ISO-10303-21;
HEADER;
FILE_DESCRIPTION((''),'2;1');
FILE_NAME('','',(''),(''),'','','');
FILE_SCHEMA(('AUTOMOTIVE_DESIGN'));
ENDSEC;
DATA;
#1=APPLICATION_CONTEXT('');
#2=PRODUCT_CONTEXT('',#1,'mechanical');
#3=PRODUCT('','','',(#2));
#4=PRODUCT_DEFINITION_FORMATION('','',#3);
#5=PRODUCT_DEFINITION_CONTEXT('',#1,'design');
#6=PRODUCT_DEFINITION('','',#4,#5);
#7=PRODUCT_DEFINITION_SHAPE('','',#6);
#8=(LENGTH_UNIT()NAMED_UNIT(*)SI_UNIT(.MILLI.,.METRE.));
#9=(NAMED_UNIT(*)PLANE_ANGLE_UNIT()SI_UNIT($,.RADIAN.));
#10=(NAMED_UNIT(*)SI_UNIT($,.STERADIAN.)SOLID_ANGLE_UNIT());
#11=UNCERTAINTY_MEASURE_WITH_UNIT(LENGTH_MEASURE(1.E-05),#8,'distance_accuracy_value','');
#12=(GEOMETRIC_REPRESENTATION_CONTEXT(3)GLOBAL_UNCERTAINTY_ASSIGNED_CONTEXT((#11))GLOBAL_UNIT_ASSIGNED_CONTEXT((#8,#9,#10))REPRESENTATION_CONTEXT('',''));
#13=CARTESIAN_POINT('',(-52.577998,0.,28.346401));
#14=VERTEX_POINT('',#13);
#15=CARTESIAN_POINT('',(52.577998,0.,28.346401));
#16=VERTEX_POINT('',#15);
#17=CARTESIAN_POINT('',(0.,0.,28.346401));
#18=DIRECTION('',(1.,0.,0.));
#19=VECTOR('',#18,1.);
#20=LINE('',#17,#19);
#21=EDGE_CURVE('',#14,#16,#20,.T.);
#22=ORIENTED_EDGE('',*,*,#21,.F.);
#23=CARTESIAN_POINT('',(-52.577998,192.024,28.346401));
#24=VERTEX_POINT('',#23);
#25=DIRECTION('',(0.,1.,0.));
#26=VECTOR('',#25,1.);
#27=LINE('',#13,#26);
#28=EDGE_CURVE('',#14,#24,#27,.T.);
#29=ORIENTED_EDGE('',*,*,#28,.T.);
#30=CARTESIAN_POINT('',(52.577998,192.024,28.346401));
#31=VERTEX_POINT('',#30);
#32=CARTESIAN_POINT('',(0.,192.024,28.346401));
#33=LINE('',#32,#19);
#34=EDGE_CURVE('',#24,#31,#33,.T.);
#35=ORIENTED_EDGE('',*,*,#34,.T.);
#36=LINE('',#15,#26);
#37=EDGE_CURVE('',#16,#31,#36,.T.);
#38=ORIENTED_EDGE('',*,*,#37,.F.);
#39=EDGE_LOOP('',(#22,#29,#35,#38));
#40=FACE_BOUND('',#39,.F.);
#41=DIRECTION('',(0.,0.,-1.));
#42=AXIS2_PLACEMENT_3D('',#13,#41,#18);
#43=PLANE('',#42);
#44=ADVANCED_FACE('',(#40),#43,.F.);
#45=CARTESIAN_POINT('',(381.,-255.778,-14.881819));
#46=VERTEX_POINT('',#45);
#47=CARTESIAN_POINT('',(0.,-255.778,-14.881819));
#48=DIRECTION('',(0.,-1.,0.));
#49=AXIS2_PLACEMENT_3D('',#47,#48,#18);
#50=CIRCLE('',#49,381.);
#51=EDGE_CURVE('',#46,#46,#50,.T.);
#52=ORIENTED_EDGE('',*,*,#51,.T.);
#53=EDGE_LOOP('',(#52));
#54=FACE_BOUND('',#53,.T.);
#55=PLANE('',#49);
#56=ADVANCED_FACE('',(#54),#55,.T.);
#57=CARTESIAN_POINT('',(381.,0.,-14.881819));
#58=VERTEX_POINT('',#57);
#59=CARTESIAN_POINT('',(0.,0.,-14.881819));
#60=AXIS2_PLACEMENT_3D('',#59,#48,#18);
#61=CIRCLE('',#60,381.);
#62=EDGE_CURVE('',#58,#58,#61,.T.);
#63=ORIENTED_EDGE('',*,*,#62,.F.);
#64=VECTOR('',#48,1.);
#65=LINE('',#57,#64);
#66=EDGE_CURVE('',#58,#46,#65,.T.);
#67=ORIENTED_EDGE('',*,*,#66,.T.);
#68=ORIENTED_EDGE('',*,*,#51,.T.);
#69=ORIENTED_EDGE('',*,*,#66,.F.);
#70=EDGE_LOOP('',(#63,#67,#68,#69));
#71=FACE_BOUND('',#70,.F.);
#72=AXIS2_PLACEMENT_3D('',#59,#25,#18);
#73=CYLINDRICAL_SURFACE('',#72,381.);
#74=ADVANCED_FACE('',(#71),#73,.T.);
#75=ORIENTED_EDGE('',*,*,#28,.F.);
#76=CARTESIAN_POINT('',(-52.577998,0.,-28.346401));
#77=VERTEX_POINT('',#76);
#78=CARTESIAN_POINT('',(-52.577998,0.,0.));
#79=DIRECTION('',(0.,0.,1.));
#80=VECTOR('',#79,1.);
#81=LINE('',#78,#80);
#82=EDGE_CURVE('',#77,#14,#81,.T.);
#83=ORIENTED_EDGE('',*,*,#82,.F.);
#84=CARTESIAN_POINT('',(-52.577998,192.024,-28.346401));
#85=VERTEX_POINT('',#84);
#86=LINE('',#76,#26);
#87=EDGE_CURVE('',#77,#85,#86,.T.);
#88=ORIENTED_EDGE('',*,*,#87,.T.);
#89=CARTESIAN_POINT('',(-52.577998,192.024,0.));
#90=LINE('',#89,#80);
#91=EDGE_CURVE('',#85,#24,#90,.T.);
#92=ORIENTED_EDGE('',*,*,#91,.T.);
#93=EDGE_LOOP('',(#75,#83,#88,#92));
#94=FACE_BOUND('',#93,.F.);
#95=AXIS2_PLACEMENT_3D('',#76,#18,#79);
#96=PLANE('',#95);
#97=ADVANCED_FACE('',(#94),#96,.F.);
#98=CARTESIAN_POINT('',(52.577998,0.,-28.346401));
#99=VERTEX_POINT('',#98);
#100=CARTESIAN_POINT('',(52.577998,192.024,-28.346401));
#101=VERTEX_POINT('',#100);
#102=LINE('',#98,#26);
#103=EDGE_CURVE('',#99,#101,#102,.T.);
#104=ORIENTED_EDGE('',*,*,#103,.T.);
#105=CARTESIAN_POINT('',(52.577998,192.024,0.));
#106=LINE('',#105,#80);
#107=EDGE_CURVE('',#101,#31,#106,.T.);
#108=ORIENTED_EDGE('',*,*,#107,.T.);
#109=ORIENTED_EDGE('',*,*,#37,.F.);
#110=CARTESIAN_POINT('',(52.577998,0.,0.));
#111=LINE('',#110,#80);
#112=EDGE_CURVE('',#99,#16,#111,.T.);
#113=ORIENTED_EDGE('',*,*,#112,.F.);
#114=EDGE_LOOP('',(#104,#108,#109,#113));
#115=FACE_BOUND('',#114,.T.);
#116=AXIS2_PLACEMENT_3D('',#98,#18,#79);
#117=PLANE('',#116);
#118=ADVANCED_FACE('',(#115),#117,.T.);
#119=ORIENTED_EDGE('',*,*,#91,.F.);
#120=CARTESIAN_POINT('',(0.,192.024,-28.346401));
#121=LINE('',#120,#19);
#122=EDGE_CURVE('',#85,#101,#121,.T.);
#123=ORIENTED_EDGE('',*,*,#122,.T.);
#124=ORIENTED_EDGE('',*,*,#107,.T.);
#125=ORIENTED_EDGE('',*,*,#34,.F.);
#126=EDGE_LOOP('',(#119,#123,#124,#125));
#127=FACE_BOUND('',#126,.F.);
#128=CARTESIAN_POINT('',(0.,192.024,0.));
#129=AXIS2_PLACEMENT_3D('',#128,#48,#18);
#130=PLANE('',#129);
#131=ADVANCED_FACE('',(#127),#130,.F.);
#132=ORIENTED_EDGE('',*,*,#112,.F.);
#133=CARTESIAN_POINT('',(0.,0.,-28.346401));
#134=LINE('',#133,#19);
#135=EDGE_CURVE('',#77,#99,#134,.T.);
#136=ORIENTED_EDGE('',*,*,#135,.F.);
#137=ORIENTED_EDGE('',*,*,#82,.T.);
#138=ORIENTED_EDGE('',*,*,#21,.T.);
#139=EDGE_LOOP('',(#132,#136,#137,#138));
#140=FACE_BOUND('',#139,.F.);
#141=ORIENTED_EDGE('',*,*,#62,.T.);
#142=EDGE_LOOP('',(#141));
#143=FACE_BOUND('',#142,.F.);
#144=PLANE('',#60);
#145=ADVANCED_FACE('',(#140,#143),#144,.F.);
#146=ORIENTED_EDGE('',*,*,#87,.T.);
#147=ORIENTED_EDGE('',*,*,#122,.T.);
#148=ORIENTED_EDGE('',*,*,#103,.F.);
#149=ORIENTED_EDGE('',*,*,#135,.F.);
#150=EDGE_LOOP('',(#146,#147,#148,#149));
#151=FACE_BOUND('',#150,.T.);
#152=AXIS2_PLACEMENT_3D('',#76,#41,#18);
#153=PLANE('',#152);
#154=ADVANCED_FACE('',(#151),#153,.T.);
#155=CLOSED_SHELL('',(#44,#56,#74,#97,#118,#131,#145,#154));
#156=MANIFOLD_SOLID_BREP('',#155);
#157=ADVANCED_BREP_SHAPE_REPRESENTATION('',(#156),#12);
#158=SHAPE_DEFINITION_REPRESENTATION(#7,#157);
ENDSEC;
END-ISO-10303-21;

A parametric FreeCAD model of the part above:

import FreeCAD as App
import Part
import Sketcher

V = App.Vector
Q = App.Units.Quantity


def add_polygon(sketch, points):
    """Adds a closed chain of lines whose ends are joined by coincident constraints."""
    first, n = sketch.GeometryCount, len(points)
    for a, b in zip(points, points[1:] + points[:1]):
        sketch.addGeometry(Part.LineSegment(App.Vector(*a, 0), App.Vector(*b, 0)), False)
    for i in range(n):
        sketch.addConstraint(Sketcher.Constraint("Coincident", first + i, 2, first + (i + 1) % n, 1))

doc = App.newDocument("Part")
body = doc.addObject("PartDesign::Body", "Body")

# Sketch on XZ plane
sketch1 = doc.addObject("Sketcher::SketchObject", "Sketch")
body.addObject(sketch1)
sketch1.AttachmentSupport = (doc.XZ_Plane, [""])
sketch1.MapMode = "FlatFace"
add_polygon(sketch1, [(-53, 28), (-53, -28), (53, -28), (53, 28)])  # lines 0-3
sketch1.addConstraint(Sketcher.Constraint("Vertical", 0))
sketch1.addConstraint(Sketcher.Constraint("Horizontal", 1))
sketch1.addConstraint(Sketcher.Constraint("Vertical", 2))
sketch1.addConstraint(Sketcher.Constraint("Horizontal", 3))
sketch1.addConstraint(Sketcher.Constraint("Symmetric", 0, 2, 2, 2, -1, 1))
sketch1.addConstraint(Sketcher.Constraint("DistanceX", 1, 1, 1, 2, Q("4.1399998 in")))
sketch1.addConstraint(Sketcher.Constraint("DistanceY", 0, 2, 0, 1, Q("2.2320001 in")))
pad1 = doc.addObject("PartDesign::Pad", "Pad")
body.addObject(pad1)
pad1.Profile = sketch1
pad1.Length = Q("7.56 in")
pad1.Reversed = True

# Sketch on XZ plane
sketch2 = doc.addObject("Sketcher::SketchObject", "Sketch001")
body.addObject(sketch2)
sketch2.AttachmentSupport = (doc.XZ_Plane, [""])
sketch2.MapMode = "FlatFace"
sketch2.addGeometry(Part.Circle(V(0, -15, 0), V(0, 0, 1), 381), False)
sketch2.addConstraint(Sketcher.Constraint("PointOnObject", 0, 3, -2))
sketch2.addConstraint(Sketcher.Constraint("Diameter", 0, Q("30 in")))
sketch2.addConstraint(Sketcher.Constraint("DistanceY", 0, 3, -1, 1, 14.881819))
pad2 = doc.addObject("PartDesign::Pad", "Pad001")
body.addObject(pad2)
pad2.Profile = sketch2
pad2.Length = Q("10.07 in")

doc.recompute()
